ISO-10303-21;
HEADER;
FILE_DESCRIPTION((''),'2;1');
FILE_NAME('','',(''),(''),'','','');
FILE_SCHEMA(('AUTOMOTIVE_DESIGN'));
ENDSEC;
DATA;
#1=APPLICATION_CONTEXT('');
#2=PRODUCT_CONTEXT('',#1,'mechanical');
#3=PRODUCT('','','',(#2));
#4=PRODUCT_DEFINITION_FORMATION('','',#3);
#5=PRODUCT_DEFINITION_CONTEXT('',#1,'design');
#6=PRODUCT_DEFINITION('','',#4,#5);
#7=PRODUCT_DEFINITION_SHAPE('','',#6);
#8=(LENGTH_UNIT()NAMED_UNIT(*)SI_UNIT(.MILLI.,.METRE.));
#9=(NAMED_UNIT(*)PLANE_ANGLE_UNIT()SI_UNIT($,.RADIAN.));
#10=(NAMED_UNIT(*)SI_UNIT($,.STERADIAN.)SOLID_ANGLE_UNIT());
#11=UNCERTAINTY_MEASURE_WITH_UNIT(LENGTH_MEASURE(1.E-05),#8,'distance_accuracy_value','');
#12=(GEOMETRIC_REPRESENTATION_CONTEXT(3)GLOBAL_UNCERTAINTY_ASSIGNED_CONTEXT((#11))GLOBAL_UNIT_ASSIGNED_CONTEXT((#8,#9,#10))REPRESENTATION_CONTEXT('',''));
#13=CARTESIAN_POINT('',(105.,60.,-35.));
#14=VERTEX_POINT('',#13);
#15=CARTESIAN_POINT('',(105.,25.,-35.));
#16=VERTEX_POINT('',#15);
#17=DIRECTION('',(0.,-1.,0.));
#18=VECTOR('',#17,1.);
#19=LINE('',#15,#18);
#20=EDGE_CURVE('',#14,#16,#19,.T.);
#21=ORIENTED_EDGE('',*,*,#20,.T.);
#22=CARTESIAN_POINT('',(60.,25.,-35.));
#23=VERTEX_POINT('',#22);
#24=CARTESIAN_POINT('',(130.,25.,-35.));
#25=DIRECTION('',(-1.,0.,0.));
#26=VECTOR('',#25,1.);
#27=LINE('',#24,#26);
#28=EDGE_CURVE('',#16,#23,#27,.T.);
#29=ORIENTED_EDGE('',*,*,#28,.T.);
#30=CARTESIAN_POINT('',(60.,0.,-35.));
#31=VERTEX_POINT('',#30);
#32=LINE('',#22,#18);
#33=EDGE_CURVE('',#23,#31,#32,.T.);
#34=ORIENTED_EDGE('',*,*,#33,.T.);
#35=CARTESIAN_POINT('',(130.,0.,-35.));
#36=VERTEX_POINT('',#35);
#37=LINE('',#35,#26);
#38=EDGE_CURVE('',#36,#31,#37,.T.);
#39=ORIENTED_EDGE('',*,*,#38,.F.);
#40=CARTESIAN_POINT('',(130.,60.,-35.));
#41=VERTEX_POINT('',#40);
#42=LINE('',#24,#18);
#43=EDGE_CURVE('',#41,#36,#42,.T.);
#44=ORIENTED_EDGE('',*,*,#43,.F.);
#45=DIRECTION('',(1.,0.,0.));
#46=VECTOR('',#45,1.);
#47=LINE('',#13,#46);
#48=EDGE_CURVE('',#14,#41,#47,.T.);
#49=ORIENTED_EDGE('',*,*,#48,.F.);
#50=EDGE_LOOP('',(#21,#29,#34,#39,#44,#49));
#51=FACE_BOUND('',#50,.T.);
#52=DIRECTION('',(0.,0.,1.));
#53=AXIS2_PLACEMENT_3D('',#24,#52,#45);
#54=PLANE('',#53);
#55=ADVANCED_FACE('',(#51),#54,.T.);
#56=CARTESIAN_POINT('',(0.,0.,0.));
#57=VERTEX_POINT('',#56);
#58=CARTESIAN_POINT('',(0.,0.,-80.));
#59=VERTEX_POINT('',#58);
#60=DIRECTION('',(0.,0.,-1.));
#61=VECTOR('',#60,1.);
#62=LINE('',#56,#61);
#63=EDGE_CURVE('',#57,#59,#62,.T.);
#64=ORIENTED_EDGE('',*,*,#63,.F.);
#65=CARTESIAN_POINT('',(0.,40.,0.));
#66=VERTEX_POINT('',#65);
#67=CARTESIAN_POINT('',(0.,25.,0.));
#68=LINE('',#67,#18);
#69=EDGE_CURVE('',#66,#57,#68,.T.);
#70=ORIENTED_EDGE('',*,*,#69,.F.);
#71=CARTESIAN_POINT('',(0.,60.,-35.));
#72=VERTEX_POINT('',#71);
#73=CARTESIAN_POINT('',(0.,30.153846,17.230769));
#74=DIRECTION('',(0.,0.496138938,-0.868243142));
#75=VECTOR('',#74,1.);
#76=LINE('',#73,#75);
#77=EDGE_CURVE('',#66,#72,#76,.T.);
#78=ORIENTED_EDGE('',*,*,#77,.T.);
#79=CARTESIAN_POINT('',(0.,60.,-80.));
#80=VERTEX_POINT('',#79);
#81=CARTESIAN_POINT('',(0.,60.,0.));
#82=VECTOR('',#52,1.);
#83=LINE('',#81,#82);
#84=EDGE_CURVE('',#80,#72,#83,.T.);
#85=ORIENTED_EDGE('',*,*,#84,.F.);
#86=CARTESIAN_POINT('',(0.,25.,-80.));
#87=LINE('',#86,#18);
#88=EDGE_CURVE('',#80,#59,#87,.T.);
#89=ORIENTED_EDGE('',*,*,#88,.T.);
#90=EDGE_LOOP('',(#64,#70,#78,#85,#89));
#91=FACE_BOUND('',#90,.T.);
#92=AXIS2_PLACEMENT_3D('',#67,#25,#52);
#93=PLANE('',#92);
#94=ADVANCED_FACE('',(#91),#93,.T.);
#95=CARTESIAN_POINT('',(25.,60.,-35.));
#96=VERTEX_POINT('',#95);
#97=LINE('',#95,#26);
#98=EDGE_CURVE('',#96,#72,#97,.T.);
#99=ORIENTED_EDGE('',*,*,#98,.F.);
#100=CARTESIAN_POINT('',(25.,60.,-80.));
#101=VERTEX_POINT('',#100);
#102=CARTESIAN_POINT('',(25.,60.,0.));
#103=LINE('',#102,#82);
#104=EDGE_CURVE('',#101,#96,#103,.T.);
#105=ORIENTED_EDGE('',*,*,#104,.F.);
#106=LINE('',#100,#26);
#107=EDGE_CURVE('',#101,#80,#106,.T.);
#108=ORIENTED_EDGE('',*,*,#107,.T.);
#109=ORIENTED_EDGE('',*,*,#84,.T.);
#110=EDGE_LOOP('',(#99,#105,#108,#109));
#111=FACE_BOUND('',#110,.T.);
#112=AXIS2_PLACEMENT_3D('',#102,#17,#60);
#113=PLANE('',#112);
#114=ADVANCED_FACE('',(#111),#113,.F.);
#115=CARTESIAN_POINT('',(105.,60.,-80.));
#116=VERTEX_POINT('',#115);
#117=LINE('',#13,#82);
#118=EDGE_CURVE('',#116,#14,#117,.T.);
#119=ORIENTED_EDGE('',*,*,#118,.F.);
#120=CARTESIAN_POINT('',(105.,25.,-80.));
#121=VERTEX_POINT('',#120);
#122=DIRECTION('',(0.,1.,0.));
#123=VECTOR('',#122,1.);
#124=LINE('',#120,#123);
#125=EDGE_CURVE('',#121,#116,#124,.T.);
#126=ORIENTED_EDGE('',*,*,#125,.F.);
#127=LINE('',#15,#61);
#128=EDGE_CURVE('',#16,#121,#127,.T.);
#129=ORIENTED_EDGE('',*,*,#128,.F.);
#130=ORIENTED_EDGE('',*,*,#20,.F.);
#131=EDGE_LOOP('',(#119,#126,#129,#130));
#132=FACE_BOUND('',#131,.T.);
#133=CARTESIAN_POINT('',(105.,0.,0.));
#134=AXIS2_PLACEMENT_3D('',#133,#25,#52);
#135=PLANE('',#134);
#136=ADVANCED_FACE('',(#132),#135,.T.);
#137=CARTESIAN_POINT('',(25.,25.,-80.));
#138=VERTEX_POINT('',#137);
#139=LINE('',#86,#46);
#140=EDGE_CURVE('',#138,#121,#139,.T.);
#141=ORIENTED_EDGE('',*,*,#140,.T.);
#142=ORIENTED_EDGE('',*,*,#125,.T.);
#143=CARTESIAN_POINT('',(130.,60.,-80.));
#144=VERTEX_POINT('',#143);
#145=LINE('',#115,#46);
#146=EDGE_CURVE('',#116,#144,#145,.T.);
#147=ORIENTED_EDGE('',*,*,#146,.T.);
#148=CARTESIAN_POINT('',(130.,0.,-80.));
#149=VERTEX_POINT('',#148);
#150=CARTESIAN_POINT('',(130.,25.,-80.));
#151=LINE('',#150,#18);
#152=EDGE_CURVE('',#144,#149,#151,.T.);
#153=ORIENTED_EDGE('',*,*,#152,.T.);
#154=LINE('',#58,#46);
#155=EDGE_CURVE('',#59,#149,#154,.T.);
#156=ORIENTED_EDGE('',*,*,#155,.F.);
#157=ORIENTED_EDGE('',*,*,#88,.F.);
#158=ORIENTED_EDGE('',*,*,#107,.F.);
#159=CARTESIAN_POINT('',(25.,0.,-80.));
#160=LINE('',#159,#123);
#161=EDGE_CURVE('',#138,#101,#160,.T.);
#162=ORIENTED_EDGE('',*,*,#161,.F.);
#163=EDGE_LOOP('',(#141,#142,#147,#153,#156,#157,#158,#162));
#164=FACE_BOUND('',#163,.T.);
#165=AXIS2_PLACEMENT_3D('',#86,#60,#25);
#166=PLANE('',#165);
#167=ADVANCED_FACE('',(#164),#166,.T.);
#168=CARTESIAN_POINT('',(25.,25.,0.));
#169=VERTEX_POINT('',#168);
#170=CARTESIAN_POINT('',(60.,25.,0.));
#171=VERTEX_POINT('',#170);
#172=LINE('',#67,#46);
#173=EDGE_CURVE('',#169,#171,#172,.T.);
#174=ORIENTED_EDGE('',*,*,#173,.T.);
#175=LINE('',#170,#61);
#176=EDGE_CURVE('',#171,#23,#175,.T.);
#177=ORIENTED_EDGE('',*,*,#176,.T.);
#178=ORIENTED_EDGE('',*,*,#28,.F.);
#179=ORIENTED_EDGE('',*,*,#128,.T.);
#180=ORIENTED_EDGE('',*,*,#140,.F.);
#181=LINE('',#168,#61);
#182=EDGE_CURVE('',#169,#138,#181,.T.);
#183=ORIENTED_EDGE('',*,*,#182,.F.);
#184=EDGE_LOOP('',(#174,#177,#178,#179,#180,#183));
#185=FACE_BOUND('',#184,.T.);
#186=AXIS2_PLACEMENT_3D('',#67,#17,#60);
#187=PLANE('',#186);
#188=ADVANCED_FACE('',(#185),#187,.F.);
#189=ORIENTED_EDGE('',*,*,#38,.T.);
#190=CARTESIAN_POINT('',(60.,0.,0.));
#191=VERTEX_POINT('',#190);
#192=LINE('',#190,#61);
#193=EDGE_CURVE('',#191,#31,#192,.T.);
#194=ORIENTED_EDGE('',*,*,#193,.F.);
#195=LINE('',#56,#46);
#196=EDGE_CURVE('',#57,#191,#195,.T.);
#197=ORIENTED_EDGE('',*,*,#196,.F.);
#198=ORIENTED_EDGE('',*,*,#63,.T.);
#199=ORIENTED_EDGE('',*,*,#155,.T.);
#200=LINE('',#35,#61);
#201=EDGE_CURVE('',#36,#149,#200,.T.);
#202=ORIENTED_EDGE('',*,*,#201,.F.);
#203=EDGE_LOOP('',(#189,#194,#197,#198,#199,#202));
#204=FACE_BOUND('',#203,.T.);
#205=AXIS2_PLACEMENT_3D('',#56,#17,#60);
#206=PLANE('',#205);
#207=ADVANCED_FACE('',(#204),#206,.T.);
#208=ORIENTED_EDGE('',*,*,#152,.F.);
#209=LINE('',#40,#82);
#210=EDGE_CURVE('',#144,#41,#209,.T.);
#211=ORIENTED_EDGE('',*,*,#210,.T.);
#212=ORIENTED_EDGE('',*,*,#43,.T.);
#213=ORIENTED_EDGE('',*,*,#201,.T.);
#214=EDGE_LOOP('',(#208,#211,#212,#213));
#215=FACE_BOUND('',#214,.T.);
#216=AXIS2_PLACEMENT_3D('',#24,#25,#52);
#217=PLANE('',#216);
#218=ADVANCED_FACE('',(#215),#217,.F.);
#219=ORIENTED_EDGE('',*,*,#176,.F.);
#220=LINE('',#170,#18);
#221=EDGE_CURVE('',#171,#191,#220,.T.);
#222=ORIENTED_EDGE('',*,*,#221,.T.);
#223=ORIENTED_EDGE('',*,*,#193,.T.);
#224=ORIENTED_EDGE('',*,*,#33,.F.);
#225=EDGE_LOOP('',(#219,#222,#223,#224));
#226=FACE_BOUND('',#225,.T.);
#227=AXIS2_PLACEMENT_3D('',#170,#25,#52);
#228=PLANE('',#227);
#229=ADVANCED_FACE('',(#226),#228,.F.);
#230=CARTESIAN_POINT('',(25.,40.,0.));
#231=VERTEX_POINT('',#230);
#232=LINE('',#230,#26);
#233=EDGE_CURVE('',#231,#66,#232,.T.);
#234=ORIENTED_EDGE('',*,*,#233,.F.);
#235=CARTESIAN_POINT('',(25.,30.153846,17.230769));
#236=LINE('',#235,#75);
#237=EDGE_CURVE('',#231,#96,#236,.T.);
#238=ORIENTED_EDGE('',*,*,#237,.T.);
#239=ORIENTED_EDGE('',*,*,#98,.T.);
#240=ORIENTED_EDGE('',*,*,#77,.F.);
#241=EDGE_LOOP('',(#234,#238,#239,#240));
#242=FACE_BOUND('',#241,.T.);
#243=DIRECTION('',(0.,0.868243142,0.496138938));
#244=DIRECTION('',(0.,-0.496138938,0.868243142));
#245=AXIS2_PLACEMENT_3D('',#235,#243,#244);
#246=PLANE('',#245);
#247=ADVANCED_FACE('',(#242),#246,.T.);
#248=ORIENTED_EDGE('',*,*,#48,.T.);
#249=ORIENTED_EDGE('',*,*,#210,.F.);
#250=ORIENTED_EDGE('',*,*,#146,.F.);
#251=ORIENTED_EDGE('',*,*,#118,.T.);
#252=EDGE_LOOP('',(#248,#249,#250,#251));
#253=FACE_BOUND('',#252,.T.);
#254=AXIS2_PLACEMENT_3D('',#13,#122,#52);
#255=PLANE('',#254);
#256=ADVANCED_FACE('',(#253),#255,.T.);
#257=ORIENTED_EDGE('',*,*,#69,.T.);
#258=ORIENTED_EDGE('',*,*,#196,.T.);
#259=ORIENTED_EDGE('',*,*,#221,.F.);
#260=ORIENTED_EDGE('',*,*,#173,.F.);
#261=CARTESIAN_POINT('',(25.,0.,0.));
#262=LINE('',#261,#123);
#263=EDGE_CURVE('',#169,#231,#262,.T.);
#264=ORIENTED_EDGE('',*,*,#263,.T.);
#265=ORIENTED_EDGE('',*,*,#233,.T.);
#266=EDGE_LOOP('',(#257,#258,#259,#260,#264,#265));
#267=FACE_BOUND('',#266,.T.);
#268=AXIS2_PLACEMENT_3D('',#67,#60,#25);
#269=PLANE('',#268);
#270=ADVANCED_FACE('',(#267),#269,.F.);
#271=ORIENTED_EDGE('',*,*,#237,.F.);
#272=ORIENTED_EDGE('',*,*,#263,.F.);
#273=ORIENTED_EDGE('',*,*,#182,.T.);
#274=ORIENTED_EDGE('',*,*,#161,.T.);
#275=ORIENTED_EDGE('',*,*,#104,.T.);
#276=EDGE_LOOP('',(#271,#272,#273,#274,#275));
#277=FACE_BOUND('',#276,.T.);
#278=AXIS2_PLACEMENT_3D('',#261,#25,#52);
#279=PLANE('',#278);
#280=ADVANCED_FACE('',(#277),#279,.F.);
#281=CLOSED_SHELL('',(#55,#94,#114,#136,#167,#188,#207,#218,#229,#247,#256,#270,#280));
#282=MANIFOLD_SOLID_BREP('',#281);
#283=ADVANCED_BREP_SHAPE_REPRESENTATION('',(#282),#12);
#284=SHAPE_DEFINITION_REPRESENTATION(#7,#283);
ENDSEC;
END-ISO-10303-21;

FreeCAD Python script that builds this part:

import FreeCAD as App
import Part
import Sketcher
from FreeCAD import Vector
Q = App.Units.Quantity

doc = App.newDocument("Part")
params = doc.addObject("Spreadsheet::Sheet", "Params")
for row, (alias, value) in enumerate([
    ("sketch1_width", "60 mm"),
    ("sketch1_width2", "70 mm"),
    ("sketch1_height", "35 mm"),
    ("sketch1_height2", "45 mm"),
    ("pad1_length", "25 mm"),
    ("sketch2_width", "35 mm"),
    ("sketch2_width2", "15 mm"),
    ("sketch2_height", "45 mm"),
    ("sketch2_height2", "80 mm"),
    ("pad2_length", "25 mm"),
    ("sketch3_width", "35 mm"),
    ("sketch3_height", "45 mm"),
    ("pad3_length", "25 mm"),
], start=1):
    params.set(f"A{row}", alias)
    params.set(f"B{row}", "=" + value)
    params.setAlias(f"B{row}", alias)

body = doc.addObject("PartDesign::Body", "Body")

# Sketch on XZ plane
sketch1 = body.newObject("Sketcher::SketchObject", "Sketch")
sketch1.AttachmentSupport = (doc.getObject("XZ_Plane"), [""])
sketch1.MapMode = "FlatFace"
sketch1.addGeometry([
    Part.LineSegment(Vector(0, 0, 0), Vector(60, 0, 0)),  # 0
    Part.LineSegment(Vector(60, 0, 0), Vector(60, -35, 0)),  # 1
    Part.LineSegment(Vector(60, -35, 0), Vector(130, -35, 0)),  # 2
    Part.LineSegment(Vector(130, -35, 0), Vector(130, -80, 0)),  # 3
    Part.LineSegment(Vector(130, -80, 0), Vector(0, -80, 0)),  # 4
    Part.LineSegment(Vector(0, -80, 0), Vector(0, 0, 0)),  # 5
], False)
sketch1.addConstraint([
    Sketcher.Constraint("Coincident", 0, 2, 1, 1),
    Sketcher.Constraint("Coincident", 1, 2, 2, 1),
    Sketcher.Constraint("Coincident", 2, 2, 3, 1),
    Sketcher.Constraint("Coincident", 3, 2, 4, 1),
    Sketcher.Constraint("Coincident", 4, 2, 5, 1),
    Sketcher.Constraint("Coincident", 5, 2, 0, 1),
    Sketcher.Constraint("Horizontal", 0),
    Sketcher.Constraint("Vertical", 1),
    Sketcher.Constraint("Horizontal", 2),
    Sketcher.Constraint("Vertical", 3),
    Sketcher.Constraint("Horizontal", 4),
    Sketcher.Constraint("Vertical", 5),
    Sketcher.Constraint("Coincident", 5, 2, -1, 1),
    Sketcher.Constraint("DistanceX", 0, 1, 0, 2, Q("60 mm")),
    Sketcher.Constraint("DistanceX", 2, 1, 2, 2, Q("70 mm")),
    Sketcher.Constraint("DistanceY", 1, 2, 1, 1, Q("35 mm")),
    Sketcher.Constraint("DistanceY", 3, 2, 3, 1, Q("45 mm")),
])
sketch1.setExpression("Constraints[13]", "Params.sketch1_width")
sketch1.setExpression("Constraints[14]", "Params.sketch1_width2")
sketch1.setExpression("Constraints[15]", "Params.sketch1_height")
sketch1.setExpression("Constraints[16]", "Params.sketch1_height2")
pad1 = body.newObject("PartDesign::Pad", "Pad")
pad1.Profile = sketch1
pad1.setExpression("Length", "Params.pad1_length")
pad1.Reversed = True

# Sketch on YZ plane
sketch2 = body.newObject("Sketcher::SketchObject", "Sketch001")
sketch2.AttachmentSupport = (doc.getObject("YZ_Plane"), [""])
sketch2.MapMode = "FlatFace"
sketch2.addGeometry([
    Part.LineSegment(Vector(40, 0, 0), Vector(60, -35, 0)),  # 0
    Part.LineSegment(Vector(60, -35, 0), Vector(60, -80, 0)),  # 1
    Part.LineSegment(Vector(60, -80, 0), Vector(25, -80, 0)),  # 2
    Part.LineSegment(Vector(25, -80, 0), Vector(25, 0, 0)),  # 3
    Part.LineSegment(Vector(25, 0, 0), Vector(40, 0, 0)),  # 4
], False)
sketch2.addConstraint([
    Sketcher.Constraint("Coincident", 0, 2, 1, 1),
    Sketcher.Constraint("Coincident", 1, 2, 2, 1),
    Sketcher.Constraint("Coincident", 2, 2, 3, 1),
    Sketcher.Constraint("Coincident", 3, 2, 4, 1),
    Sketcher.Constraint("Coincident", 4, 2, 0, 1),
    Sketcher.Constraint("Vertical", 1),
    Sketcher.Constraint("Horizontal", 2),
    Sketcher.Constraint("Vertical", 3),
    Sketcher.Constraint("Horizontal", 4),
    Sketcher.Constraint("PointOnObject", 3, 2, -1),
    Sketcher.Constraint("DistanceX", 2, 2, 2, 1, Q("35 mm")),
    Sketcher.Constraint("DistanceX", 4, 1, 4, 2, Q("15 mm")),
    Sketcher.Constraint("DistanceY", 1, 2, 1, 1, Q("45 mm")),
    Sketcher.Constraint("DistanceY", 3, 1, 3, 2, Q("80 mm")),
    Sketcher.Constraint("DistanceX", -1, 1, 0, 2, Q("60 mm")),
])
sketch2.setExpression("Constraints[10]", "Params.sketch2_width")
sketch2.setExpression("Constraints[11]", "Params.sketch2_width2")
sketch2.setExpression("Constraints[12]", "Params.sketch2_height")
sketch2.setExpression("Constraints[13]", "Params.sketch2_height2")
pad2 = body.newObject("PartDesign::Pad", "Pad001")
pad2.Profile = sketch2
pad2.setExpression("Length", "Params.pad2_length")

# Sketch on YZ plane
sketch3 = body.newObject("Sketcher::SketchObject", "Sketch002")
sketch3.AttachmentSupport = (doc.getObject("YZ_Plane"), [""])
sketch3.MapMode = "FlatFace"
sketch3.AttachmentOffset = App.Placement(Vector(0, 0, 130), App.Rotation())
sketch3.addGeometry([
    Part.LineSegment(Vector(60, -35, 0), Vector(25, -35, 0)),
    Part.LineSegment(Vector(25, -35, 0), Vector(25, -80, 0)),
    Part.LineSegment(Vector(25, -80, 0), Vector(60, -80, 0)),
    Part.LineSegment(Vector(60, -80, 0), Vector(60, -35, 0)),
], False)
sketch3.addConstraint([
    Sketcher.Constraint("Coincident", 0, 2, 1, 1),
    Sketcher.Constraint("Coincident", 1, 2, 2, 1),
    Sketcher.Constraint("Coincident", 2, 2, 3, 1),
    Sketcher.Constraint("Coincident", 3, 2, 0, 1),
    Sketcher.Constraint("Horizontal", 0),
    Sketcher.Constraint("Vertical", 1),
    Sketcher.Constraint("Horizontal", 2),
    Sketcher.Constraint("Vertical", 3),
    Sketcher.Constraint("DistanceX", 0, 2, 0, 1, Q("35 mm")),
    Sketcher.Constraint("DistanceY", 1, 2, 1, 1, Q("45 mm")),
    Sketcher.Constraint("DistanceX", -1, 1, 0, 2, Q("25 mm")),
    Sketcher.Constraint("DistanceY", 0, 2, -1, 1, Q("35 mm")),
])
sketch3.setExpression("Constraints[8]", "Params.sketch3_width")
sketch3.setExpression("Constraints[9]", "Params.sketch3_height")
pad3 = body.newObject("PartDesign::Pad", "Pad002")
pad3.Profile = sketch3
pad3.setExpression("Length", "Params.pad3_length")
pad3.Reversed = True

doc.recompute()
